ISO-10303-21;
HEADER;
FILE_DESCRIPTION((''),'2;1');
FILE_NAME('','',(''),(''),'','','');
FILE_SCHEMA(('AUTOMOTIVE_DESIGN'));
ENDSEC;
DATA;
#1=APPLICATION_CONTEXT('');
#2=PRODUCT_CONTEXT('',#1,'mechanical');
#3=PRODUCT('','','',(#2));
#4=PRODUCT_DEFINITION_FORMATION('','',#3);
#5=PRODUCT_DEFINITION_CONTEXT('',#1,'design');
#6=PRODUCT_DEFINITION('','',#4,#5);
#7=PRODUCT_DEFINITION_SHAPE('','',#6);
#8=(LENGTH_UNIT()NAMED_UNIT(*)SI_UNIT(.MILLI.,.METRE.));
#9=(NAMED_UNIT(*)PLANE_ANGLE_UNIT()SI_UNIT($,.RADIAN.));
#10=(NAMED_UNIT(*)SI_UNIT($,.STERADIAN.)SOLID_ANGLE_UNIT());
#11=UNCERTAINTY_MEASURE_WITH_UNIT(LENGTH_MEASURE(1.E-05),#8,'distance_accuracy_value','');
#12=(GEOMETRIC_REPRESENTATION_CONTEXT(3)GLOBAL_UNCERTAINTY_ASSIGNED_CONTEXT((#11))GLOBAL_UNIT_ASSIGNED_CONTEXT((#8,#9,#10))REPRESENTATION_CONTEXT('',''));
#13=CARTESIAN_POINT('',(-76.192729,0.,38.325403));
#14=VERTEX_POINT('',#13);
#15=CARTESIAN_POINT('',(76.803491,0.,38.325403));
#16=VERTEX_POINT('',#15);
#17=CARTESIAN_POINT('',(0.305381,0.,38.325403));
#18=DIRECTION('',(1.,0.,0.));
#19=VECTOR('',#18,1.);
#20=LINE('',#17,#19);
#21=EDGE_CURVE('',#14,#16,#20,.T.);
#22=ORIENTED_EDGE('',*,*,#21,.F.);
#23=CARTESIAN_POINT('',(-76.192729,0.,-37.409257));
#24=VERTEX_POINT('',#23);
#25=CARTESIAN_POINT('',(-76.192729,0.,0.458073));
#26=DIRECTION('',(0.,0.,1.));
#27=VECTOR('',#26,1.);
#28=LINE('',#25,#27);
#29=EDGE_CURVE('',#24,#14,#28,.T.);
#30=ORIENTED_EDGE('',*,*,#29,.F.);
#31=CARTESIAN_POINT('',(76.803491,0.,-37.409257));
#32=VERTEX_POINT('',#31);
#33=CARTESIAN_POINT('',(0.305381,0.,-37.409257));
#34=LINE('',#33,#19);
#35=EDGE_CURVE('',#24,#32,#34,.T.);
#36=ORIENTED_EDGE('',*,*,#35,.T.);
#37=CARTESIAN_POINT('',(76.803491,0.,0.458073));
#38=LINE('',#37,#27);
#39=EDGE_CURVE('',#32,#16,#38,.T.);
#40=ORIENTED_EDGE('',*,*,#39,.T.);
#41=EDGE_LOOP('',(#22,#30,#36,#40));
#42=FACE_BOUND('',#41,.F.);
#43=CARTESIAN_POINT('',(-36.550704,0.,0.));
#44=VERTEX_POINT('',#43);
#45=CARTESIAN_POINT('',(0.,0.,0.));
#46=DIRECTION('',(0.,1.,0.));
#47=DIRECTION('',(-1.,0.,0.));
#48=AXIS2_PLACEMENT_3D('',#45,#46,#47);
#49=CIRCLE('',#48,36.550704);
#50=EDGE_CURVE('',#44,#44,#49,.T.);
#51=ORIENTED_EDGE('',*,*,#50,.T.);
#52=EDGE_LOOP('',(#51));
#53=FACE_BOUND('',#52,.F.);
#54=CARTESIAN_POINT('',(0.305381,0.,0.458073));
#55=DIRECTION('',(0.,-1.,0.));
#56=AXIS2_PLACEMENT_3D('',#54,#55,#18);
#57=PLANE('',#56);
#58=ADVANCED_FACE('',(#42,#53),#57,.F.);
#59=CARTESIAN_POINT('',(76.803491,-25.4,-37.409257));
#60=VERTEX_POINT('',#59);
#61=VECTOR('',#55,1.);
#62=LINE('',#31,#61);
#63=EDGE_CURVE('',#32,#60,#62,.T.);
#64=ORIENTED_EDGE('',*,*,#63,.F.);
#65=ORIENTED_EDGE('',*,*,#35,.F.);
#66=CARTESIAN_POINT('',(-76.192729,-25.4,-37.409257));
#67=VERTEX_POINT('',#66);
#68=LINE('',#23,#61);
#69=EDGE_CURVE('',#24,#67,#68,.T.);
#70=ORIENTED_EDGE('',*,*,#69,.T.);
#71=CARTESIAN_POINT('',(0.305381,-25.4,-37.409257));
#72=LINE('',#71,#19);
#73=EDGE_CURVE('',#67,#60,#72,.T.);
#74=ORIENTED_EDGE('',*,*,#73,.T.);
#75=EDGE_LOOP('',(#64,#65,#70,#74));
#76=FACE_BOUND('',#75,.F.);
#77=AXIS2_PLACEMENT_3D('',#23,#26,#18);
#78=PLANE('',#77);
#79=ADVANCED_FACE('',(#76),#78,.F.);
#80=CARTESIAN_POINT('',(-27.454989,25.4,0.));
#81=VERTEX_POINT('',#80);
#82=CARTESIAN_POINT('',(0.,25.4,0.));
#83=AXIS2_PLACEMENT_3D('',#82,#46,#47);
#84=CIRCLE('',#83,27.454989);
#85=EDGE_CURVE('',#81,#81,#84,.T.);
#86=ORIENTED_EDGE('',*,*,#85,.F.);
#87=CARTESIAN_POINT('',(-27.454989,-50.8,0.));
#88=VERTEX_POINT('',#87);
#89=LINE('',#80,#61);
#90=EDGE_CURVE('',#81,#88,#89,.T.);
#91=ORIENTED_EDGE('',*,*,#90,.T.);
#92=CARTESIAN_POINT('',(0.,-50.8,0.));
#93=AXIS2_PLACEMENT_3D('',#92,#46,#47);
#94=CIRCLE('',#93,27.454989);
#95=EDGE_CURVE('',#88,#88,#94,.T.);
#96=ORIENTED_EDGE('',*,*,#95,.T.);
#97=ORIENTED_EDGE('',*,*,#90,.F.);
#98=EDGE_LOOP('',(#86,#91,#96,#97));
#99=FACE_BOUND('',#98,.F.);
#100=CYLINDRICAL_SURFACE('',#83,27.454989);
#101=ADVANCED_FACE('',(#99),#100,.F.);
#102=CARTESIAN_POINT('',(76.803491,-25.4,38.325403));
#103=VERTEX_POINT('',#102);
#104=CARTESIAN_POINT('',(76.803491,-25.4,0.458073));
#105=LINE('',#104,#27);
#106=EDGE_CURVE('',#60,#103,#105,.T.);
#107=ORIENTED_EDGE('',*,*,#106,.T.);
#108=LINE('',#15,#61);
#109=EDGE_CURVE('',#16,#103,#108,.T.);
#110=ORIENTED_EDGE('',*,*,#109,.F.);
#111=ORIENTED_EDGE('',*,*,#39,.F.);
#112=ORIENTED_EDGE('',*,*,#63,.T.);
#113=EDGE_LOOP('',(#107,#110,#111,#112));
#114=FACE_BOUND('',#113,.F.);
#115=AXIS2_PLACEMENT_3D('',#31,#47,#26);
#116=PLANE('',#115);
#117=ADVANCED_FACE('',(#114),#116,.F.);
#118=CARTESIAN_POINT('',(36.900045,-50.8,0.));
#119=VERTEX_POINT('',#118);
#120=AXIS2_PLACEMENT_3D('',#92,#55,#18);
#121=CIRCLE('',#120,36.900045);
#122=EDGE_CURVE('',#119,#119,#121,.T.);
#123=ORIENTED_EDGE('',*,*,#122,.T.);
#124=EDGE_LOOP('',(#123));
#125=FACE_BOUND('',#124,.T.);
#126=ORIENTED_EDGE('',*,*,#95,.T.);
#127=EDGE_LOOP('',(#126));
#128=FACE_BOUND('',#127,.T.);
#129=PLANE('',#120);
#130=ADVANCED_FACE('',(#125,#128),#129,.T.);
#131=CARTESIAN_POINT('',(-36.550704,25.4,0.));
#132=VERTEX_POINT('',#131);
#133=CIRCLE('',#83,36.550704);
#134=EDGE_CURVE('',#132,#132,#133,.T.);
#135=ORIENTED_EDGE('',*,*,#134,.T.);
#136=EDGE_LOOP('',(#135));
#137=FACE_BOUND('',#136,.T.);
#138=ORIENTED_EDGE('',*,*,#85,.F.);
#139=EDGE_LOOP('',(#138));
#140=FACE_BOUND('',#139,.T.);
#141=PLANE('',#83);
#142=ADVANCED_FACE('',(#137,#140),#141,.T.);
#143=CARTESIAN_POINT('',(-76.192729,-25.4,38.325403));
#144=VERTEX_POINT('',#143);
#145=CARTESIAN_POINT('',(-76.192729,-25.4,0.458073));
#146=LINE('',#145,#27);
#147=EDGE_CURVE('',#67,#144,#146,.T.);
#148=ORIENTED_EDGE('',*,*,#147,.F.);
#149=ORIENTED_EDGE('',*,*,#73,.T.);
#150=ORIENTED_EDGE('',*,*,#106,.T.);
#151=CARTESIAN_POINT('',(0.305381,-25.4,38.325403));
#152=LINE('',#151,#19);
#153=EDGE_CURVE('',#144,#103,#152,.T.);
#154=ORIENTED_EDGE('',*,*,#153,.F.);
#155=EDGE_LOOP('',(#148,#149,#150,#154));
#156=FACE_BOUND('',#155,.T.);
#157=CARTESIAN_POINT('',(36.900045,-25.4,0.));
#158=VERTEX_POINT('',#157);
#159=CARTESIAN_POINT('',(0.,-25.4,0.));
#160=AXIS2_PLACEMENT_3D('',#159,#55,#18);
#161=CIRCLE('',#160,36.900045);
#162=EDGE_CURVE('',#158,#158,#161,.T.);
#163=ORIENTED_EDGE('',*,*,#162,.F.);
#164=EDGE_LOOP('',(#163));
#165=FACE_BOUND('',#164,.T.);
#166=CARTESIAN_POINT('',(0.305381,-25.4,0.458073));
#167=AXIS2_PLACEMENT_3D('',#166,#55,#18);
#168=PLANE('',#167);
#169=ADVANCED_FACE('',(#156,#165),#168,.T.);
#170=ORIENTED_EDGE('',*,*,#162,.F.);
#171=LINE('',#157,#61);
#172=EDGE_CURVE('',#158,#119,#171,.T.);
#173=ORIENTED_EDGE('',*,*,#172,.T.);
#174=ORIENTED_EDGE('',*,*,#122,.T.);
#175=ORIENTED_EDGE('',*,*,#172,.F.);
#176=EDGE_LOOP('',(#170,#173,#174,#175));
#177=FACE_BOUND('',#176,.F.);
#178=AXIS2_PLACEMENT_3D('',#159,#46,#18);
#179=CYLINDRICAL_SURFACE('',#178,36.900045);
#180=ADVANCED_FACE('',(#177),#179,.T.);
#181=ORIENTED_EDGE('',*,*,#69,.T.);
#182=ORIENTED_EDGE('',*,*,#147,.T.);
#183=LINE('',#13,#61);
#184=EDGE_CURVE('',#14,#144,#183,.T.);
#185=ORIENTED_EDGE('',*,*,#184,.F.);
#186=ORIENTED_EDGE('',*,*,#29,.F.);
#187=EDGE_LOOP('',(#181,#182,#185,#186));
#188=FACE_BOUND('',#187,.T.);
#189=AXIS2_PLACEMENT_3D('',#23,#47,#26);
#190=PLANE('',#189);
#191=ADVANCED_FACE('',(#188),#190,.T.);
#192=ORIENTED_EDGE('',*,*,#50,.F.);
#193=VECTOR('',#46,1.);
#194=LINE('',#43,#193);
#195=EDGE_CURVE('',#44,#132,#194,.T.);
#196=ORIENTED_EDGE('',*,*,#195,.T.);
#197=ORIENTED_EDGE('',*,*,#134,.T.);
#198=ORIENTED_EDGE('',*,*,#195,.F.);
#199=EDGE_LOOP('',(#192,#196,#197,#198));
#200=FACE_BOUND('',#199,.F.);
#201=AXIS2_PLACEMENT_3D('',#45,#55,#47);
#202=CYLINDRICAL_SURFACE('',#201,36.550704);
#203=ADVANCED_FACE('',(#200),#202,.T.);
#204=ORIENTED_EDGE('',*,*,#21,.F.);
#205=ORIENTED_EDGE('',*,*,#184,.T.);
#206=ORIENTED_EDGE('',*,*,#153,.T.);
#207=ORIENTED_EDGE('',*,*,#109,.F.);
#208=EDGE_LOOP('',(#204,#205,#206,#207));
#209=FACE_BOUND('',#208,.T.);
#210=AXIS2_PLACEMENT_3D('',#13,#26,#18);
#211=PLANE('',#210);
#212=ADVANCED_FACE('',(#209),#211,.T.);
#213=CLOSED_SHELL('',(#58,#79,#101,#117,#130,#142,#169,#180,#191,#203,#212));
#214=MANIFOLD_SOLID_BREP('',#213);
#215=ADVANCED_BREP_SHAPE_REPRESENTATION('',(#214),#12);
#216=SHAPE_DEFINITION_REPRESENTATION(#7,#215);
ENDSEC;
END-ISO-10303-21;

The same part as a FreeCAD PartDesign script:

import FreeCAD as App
import Part
import Sketcher
from FreeCAD import Vector
Q = App.Units.Quantity


def add_polygon(sketch, points):
    """Adds a closed chain of lines whose ends are joined by coincident constraints."""
    first, n = sketch.GeometryCount, len(points)
    for a, b in zip(points, points[1:] + points[:1]):
        sketch.addGeometry(Part.LineSegment(App.Vector(*a, 0), App.Vector(*b, 0)), False)
    for i in range(n):
        sketch.addConstraint(Sketcher.Constraint("Coincident", first + i, 2, first + (i + 1) % n, 1))

doc = App.newDocument("Part")
body = doc.addObject("PartDesign::Body", "Body")

sketch1 = body.newObject("Sketcher::SketchObject", "Sketch")
sketch1.AttachmentSupport = (doc.getObject("XZ_Plane"), [""])
sketch1.MapMode = "FlatFace"
add_polygon(sketch1, [(-76, 38), (-76, -37), (77, -37), (77, 38)])
sketch1.addConstraint(Sketcher.Constraint("Vertical", 0))
sketch1.addConstraint(Sketcher.Constraint("Horizontal", 1))
sketch1.addConstraint(Sketcher.Constraint("Vertical", 2))
sketch1.addConstraint(Sketcher.Constraint("Horizontal", 3))
sketch1.addConstraint(Sketcher.Constraint("DistanceX", 1, 1, 1, 2, Q("152.99622 mm")))
sketch1.addConstraint(Sketcher.Constraint("DistanceY", 0, 2, 0, 1, Q("75.73466 mm")))
sketch1.addConstraint(Sketcher.Constraint("DistanceX", 0, 2, -1, 1, Q("76.192729 mm")))
sketch1.addConstraint(Sketcher.Constraint("DistanceY", 0, 2, -1, 1, Q("37.409257 mm")))
pad1 = body.newObject("PartDesign::Pad", "Pad")
pad1.Profile = sketch1
pad1.Length = Q("1 in")

sketch2 = body.newObject("Sketcher::SketchObject", "Sketch001")
sketch2.AttachmentSupport = (doc.getObject("XZ_Plane"), [""])
sketch2.MapMode = "FlatFace"
sketch2.AttachmentOffset = App.Placement(Vector(0, 0, 1 * 25.4), App.Rotation())
sketch2.addGeometry(Part.Circle(Vector(0, 0, 0), Vector(0, 0, 1), 37), False)
sketch2.addConstraint(Sketcher.Constraint("Coincident", 0, 3, -1, 1))
sketch2.addConstraint(Sketcher.Constraint("Diameter", 0, Q("73.80009 mm")))
pad2 = body.newObject("PartDesign::Pad", "Pad001")
pad2.Profile = sketch2
pad2.Length = Q("1 in")

sketch3 = body.newObject("Sketcher::SketchObject", "Sketch002")
sketch3.AttachmentSupport = (doc.getObject("XZ_Plane"), [""])
sketch3.MapMode = "FlatFace"
sketch3.addGeometry(Part.Circle(Vector(0, 0, 0), Vector(0, 0, 1), 37), False)
sketch3.addConstraint(Sketcher.Constraint("Coincident", 0, 3, -1, 1))
sketch3.addConstraint(Sketcher.Constraint("Diameter", 0, Q("73.101408 mm")))
pad3 = body.newObject("PartDesign::Pad", "Pad002")
pad3.Profile = sketch3
pad3.Length = Q("1 in")
pad3.Reversed = True

sketch4 = body.newObject("Sketcher::SketchObject", "Sketch003")
sketch4.AttachmentSupport = (doc.getObject("XZ_Plane"), [""])
sketch4.MapMode = "FlatFace"
sketch4.AttachmentOffset = App.Placement(Vector(0, 0, 2 * 25.4), App.Rotation())
sketch4.addGeometry(Part.Circle(Vector(0, 0, 0), Vector(0, 0, 1), 26), False)
sketch4.addConstraint(Sketcher.Constraint("Coincident", 0, 3, -1, 1))
sketch4.addConstraint(Sketcher.Constraint("Diameter", 0, Q("51.869232 mm")))
pocket1 = body.newObject("PartDesign::Pocket", "Pocket")
pocket1.Profile = sketch4
pocket1.Length = Q("1 in")

sketch5 = body.newObject("Sketcher::SketchObject", "Sketch004")
sketch5.AttachmentSupport = (doc.getObject("XZ_Plane"), [""])
sketch5.MapMode = "FlatFace"
sketch5.AttachmentOffset = App.Placement(Vector(0, 0, -1 * 25.4), App.Rotation())
sketch5.addGeometry(Part.Circle(Vector(0, 0, 0), Vector(0, 0, 1), 27), False)
sketch5.addConstraint(Sketcher.Constraint("Coincident", 0, 3, -1, 1))
sketch5.addConstraint(Sketcher.Constraint("Diameter", 0, Q("54.909978 mm")))
pocket2 = body.newObject("PartDesign::Pocket", "Pocket001")
pocket2.Profile = sketch5
pocket2.Length = Q("3.28 in")
pocket2.Reversed = True

doc.recompute()
